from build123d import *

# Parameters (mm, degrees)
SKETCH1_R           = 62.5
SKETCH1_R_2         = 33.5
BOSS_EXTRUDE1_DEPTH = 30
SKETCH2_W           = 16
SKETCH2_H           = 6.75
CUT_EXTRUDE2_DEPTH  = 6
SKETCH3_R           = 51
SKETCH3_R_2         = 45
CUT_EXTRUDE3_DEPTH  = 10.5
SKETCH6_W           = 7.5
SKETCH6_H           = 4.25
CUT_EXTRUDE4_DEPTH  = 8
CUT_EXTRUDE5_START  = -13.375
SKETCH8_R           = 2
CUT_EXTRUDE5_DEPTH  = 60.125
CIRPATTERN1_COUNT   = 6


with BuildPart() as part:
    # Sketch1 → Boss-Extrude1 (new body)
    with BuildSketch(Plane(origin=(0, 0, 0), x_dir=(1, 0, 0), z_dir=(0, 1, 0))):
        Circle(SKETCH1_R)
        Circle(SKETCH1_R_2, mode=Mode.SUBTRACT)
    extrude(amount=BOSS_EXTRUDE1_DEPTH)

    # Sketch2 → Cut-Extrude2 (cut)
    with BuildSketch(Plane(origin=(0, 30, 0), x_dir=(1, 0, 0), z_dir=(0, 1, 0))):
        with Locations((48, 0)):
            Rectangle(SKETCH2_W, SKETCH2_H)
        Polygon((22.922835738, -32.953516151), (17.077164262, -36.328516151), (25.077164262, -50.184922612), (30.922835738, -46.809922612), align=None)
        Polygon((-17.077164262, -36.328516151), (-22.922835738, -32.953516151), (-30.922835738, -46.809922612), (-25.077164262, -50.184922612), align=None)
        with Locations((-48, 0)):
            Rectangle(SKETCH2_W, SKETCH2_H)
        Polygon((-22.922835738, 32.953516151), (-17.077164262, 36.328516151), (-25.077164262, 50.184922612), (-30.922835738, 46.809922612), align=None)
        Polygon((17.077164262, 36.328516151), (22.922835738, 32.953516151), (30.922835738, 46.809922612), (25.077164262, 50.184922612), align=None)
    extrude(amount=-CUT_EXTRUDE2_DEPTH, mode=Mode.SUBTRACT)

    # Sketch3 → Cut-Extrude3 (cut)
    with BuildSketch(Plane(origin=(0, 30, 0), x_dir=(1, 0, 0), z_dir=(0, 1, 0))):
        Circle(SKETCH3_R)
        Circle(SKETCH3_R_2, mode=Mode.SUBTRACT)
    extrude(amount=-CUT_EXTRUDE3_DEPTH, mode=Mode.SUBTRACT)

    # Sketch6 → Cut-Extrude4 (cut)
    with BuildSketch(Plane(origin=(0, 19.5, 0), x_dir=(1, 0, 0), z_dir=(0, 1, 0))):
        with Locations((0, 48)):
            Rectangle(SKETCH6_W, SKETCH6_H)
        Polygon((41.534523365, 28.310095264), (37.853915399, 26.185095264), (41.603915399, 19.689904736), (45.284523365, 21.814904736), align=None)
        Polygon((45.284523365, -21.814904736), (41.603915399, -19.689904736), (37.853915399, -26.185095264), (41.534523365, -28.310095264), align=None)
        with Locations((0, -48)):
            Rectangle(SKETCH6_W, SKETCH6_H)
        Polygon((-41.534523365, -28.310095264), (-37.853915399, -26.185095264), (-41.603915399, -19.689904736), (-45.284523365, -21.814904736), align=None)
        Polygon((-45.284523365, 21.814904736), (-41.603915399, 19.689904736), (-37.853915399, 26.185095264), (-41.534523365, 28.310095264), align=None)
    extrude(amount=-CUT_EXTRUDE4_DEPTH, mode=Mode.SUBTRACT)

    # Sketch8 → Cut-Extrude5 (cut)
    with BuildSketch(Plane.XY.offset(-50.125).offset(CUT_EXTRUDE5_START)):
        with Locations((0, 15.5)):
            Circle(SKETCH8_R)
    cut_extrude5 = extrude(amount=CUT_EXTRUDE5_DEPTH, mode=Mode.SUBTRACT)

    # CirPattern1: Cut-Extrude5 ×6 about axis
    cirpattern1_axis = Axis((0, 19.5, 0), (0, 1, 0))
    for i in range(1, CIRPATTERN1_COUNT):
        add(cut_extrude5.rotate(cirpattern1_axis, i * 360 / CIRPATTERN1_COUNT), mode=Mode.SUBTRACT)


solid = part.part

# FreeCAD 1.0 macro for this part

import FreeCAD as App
import Part
import Sketcher
from FreeCAD import Vector
Q = App.Units.Quantity


def add_polygon(sketch, points):
    """Adds a closed chain of lines whose ends are joined by coincident constraints."""
    first, n = sketch.GeometryCount, len(points)
    for a, b in zip(points, points[1:] + points[:1]):
        sketch.addGeometry(Part.LineSegment(App.Vector(*a, 0), App.Vector(*b, 0)), False)
    for i in range(n):
        sketch.addConstraint(Sketcher.Constraint("Coincident", first + i, 2, first + (i + 1) % n, 1))

doc = App.newDocument("Part")
body = doc.addObject("PartDesign::Body", "Body")

sketch1 = doc.addObject("Sketcher::SketchObject", "Sketch")
body.addObject(sketch1)
sketch1.AttachmentSupport = (doc.XZ_Plane, [""])
sketch1.MapMode = "FlatFace"
sketch1.addGeometry(Part.Circle(Vector(0, 0, 0), Vector(0, 0, 1), 62), False)
sketch1.addGeometry(Part.Circle(Vector(0, 0, 0), Vector(0, 0, 1), 34), False)
sketch1.addConstraint(Sketcher.Constraint("Coincident", 0, 3, -1, 1))
sketch1.addConstraint(Sketcher.Constraint("Coincident", 1, 3, -1, 1))
sketch1.addConstraint(Sketcher.Constraint("Diameter", 0, 125.0))
sketch1.addConstraint(Sketcher.Constraint("Diameter", 1, 67.0))
pad1 = doc.addObject("PartDesign::Pad", "Pad")
body.addObject(pad1)
pad1.Profile = sketch1
pad1.Length = 30
pad1.Reversed = True

sketch2 = doc.addObject("Sketcher::SketchObject", "Sketch001")
body.addObject(sketch2)
sketch2.AttachmentSupport = (doc.XZ_Plane, [""])
sketch2.MapMode = "FlatFace"
sketch2.AttachmentOffset = App.Placement(Vector(0, 0, -30), App.Rotation())
add_polygon(sketch2, [(40, -3), (40, 3), (56, 3), (56, -3)])
add_polygon(sketch2, [(23, 33), (17, 36), (25, 50), (31, 47)])
add_polygon(sketch2, [(-17, 36), (-23, 33), (-31, 47), (-25, 50)])
add_polygon(sketch2, [(-56, -3), (-56, 3), (-40, 3), (-40, -3)])
add_polygon(sketch2, [(-23, -33), (-17, -36), (-25, -50), (-31, -47)])
add_polygon(sketch2, [(17, -36), (23, -33), (31, -47), (25, -50)])
sketch2.addConstraint(Sketcher.Constraint("Vertical", 0))
sketch2.addConstraint(Sketcher.Constraint("Horizontal", 1))
sketch2.addConstraint(Sketcher.Constraint("Vertical", 2))
sketch2.addConstraint(Sketcher.Constraint("Horizontal", 3))
sketch2.addConstraint(Sketcher.Constraint("Vertical", 12))
sketch2.addConstraint(Sketcher.Constraint("Horizontal", 13))
sketch2.addConstraint(Sketcher.Constraint("Vertical", 14))
sketch2.addConstraint(Sketcher.Constraint("Horizontal", 15))
sketch2.addConstraint(Sketcher.Constraint("Symmetric", 2, 2, 12, 2, -1, 1))
sketch2.addConstraint(Sketcher.Constraint("Symmetric", 0, 2, 14, 2, -1, 1))
sketch2.addConstraint(Sketcher.Constraint("Symmetric", 4, 2, 16, 2, -1, 1))
sketch2.addConstraint(Sketcher.Constraint("Symmetric", 5, 2, 17, 2, -1, 1))
sketch2.addConstraint(Sketcher.Constraint("Symmetric", 6, 2, 18, 2, -1, 1))
sketch2.addConstraint(Sketcher.Constraint("Symmetric", 7, 2, 19, 2, -1, 1))
sketch2.addConstraint(Sketcher.Constraint("Symmetric", 8, 2, 20, 2, -1, 1))
sketch2.addConstraint(Sketcher.Constraint("Symmetric", 9, 2, 21, 2, -1, 1))
sketch2.addConstraint(Sketcher.Constraint("Symmetric", 10, 2, 22, 2, -1, 1))
sketch2.addConstraint(Sketcher.Constraint("Symmetric", 11, 2, 23, 2, -1, 1))
sketch2.addConstraint(Sketcher.Constraint("Symmetric", 7, 2, 8, 2, -2))
sketch2.addConstraint(Sketcher.Constraint("Symmetric", 6, 2, 9, 2, -2))
sketch2.addConstraint(Sketcher.Constraint("Symmetric", 5, 2, 10, 2, -2))
sketch2.addConstraint(Sketcher.Constraint("Symmetric", 4, 2, 11, 2, -2))
sketch2.addConstraint(Sketcher.Constraint("Perpendicular", 4, 5))
sketch2.addConstraint(Sketcher.Constraint("Perpendicular", 5, 6))
sketch2.addConstraint(Sketcher.Constraint("Perpendicular", 6, 7))
sketch2.addConstraint(Sketcher.Constraint("Horizontal", 1, 2, 12, 2))
sketch2.addConstraint(Sketcher.Constraint("DistanceX", 1, 1, 1, 2, 16.0))
sketch2.addConstraint(Sketcher.Constraint("Angle", 4, Q("150 deg")))
sketch2.addConstraint(Sketcher.Constraint("Distance", 5, 16.0))
sketch2.addConstraint(Sketcher.Constraint("DistanceX", -1, 1, 0, 2, 40.0))
sketch2.addConstraint(Sketcher.Constraint("DistanceX", 8, 2, 4, 2, 40.0))
sketch2.addConstraint(Sketcher.Constraint("DistanceY", 0, 1, 0, 2, 6.75))
sketch2.addConstraint(Sketcher.Constraint("Distance", 4, 6.75))
sketch2.addConstraint(Sketcher.Constraint("DistanceY", -1, 1, 4, 2, 36.328516))
pocket1 = doc.addObject("PartDesign::Pocket", "Pocket")
body.addObject(pocket1)
pocket1.Profile = sketch2
pocket1.Length = 6
pocket1.Reversed = True

sketch3 = doc.addObject("Sketcher::SketchObject", "Sketch002")
body.addObject(sketch3)
sketch3.AttachmentSupport = (doc.XZ_Plane, [""])
sketch3.MapMode = "FlatFace"
sketch3.AttachmentOffset = App.Placement(Vector(0, 0, -30), App.Rotation())
sketch3.addGeometry(Part.Circle(Vector(0, 0, 0), Vector(0, 0, 1), 51), False)
sketch3.addGeometry(Part.Circle(Vector(0, 0, 0), Vector(0, 0, 1), 45), False)
sketch3.addConstraint(Sketcher.Constraint("Coincident", 0, 3, -1, 1))
sketch3.addConstraint(Sketcher.Constraint("Coincident", 1, 3, -1, 1))
sketch3.addConstraint(Sketcher.Constraint("Diameter", 0, 102.0))
sketch3.addConstraint(Sketcher.Constraint("Diameter", 1, 90.0))
pocket2 = doc.addObject("PartDesign::Pocket", "Pocket001")
body.addObject(pocket2)
pocket2.Profile = sketch3
pocket2.Length = 10.5
pocket2.Reversed = True

sketch4 = doc.addObject("Sketcher::SketchObject", "Sketch003")
body.addObject(sketch4)
sketch4.AttachmentSupport = (doc.XZ_Plane, [""])
sketch4.MapMode = "FlatFace"
sketch4.AttachmentOffset = App.Placement(Vector(0, 0, -19.5), App.Rotation())
add_polygon(sketch4, [(-3.8, -50.1), (-3.8, -45.9), (3.8, -45.9), (3.8, -50.1)])
add_polygon(sketch4, [(41.5, -28.3), (37.9, -26.2), (41.6, -19.7), (45.3, -21.8)])
add_polygon(sketch4, [(45.3, 21.8), (41.6, 19.7), (37.9, 26.2), (41.5, 28.3)])
add_polygon(sketch4, [(-3.8, 45.9), (-3.8, 50.1), (3.8, 50.1), (3.8, 45.9)])
add_polygon(sketch4, [(-41.5, 28.3), (-37.9, 26.2), (-41.6, 19.7), (-45.3, 21.8)])
add_polygon(sketch4, [(-45.3, -21.8), (-41.6, -19.7), (-37.9, -26.2), (-41.5, -28.3)])
sketch4.addConstraint(Sketcher.Constraint("Vertical", 0))
sketch4.addConstraint(Sketcher.Constraint("Horizontal", 1))
sketch4.addConstraint(Sketcher.Constraint("Vertical", 2))
sketch4.addConstraint(Sketcher.Constraint("Horizontal", 3))
sketch4.addConstraint(Sketcher.Constraint("Vertical", 12))
sketch4.addConstraint(Sketcher.Constraint("Horizontal", 13))
sketch4.addConstraint(Sketcher.Constraint("Vertical", 14))
sketch4.addConstraint(Sketcher.Constraint("Horizontal", 15))
sketch4.addConstraint(Sketcher.Constraint("Symmetric", 2, 2, 12, 2, -1, 1))
sketch4.addConstraint(Sketcher.Constraint("Symmetric", 0, 2, 14, 2, -1, 1))
sketch4.addConstraint(Sketcher.Constraint("Symmetric", 4, 2, 16, 2, -1, 1))
sketch4.addConstraint(Sketcher.Constraint("Symmetric", 5, 2, 17, 2, -1, 1))
sketch4.addConstraint(Sketcher.Constraint("Symmetric", 6, 2, 18, 2, -1, 1))
sketch4.addConstraint(Sketcher.Constraint("Symmetric", 7, 2, 19, 2, -1, 1))
sketch4.addConstraint(Sketcher.Constraint("Symmetric", 8, 2, 20, 2, -1, 1))
sketch4.addConstraint(Sketcher.Constraint("Symmetric", 9, 2, 21, 2, -1, 1))
sketch4.addConstraint(Sketcher.Constraint("Symmetric", 10, 2, 22, 2, -1, 1))
sketch4.addConstraint(Sketcher.Constraint("Symmetric", 11, 2, 23, 2, -1, 1))
sketch4.addConstraint(Sketcher.Constraint("Symmetric", 9, 2, 16, 2, -2))
sketch4.addConstraint(Sketcher.Constraint("Symmetric", 8, 2, 17, 2, -2))
sketch4.addConstraint(Sketcher.Constraint("Symmetric", 11, 2, 18, 2, -2))
sketch4.addConstraint(Sketcher.Constraint("Symmetric", 10, 2, 19, 2, -2))
sketch4.addConstraint(Sketcher.Constraint("Perpendicular", 4, 5))
sketch4.addConstraint(Sketcher.Constraint("Perpendicular", 5, 6))
sketch4.addConstraint(Sketcher.Constraint("Perpendicular", 6, 7))
sketch4.addConstraint(Sketcher.Constraint("Vertical", 3, 2, 12, 2))
sketch4.addConstraint(Sketcher.Constraint("Angle", 4, Q("150 deg")))
sketch4.addConstraint(Sketcher.Constraint("DistanceX", 1, 1, 1, 2, 7.5))
sketch4.addConstraint(Sketcher.Constraint("DistanceY", 7, 2, 8, 2, 48.0))
sketch4.addConstraint(Sketcher.Constraint("Distance", 5, 7.5))
sketch4.addConstraint(Sketcher.Constraint("DistanceY", 0, 1, 0, 2, 4.25))
sketch4.addConstraint(Sketcher.Constraint("Distance", 4, 4.25))
sketch4.addConstraint(Sketcher.Constraint("DistanceY", 0, 2, -1, 1, 45.875))
sketch4.addConstraint(Sketcher.Constraint("DistanceX", 16, 2, 9, 2, 75.707831))
pocket3 = doc.addObject("PartDesign::Pocket", "Pocket002")
body.addObject(pocket3)
pocket3.Profile = sketch4
pocket3.Length = 8
pocket3.Reversed = True

sketch5 = doc.addObject("Sketcher::SketchObject", "Sketch004")
body.addObject(sketch5)
sketch5.AttachmentSupport = (doc.XY_Plane, [""])
sketch5.MapMode = "FlatFace"
sketch5.AttachmentOffset = App.Placement(Vector(0, 0, -63.5), App.Rotation())
sketch5.addGeometry(Part.Circle(Vector(0, 15.5, 0), Vector(0, 0, 1), 2), False)
sketch5.addConstraint(Sketcher.Constraint("PointOnObject", 0, 3, -2))
sketch5.addConstraint(Sketcher.Constraint("Diameter", 0, 4.0))
sketch5.addConstraint(Sketcher.Constraint("DistanceY", -1, 1, 0, 3, 15.5))
pocket4 = doc.addObject("PartDesign::Pocket", "Pocket003")
body.addObject(pocket4)
pocket4.Profile = sketch5
pocket4.Length = 60.125
pocket4.Reversed = True
doc.recompute()

polarpattern = doc.addObject("PartDesign::PolarPattern", "PolarPattern")
body.addObject(polarpattern)
polarpattern.Originals = [pocket4]
polarpattern.Axis = (doc.Y_Axis, [""])
polarpattern.Angle = 360
polarpattern.Occurrences = 6
body.Tip = polarpattern

doc.recompute()
